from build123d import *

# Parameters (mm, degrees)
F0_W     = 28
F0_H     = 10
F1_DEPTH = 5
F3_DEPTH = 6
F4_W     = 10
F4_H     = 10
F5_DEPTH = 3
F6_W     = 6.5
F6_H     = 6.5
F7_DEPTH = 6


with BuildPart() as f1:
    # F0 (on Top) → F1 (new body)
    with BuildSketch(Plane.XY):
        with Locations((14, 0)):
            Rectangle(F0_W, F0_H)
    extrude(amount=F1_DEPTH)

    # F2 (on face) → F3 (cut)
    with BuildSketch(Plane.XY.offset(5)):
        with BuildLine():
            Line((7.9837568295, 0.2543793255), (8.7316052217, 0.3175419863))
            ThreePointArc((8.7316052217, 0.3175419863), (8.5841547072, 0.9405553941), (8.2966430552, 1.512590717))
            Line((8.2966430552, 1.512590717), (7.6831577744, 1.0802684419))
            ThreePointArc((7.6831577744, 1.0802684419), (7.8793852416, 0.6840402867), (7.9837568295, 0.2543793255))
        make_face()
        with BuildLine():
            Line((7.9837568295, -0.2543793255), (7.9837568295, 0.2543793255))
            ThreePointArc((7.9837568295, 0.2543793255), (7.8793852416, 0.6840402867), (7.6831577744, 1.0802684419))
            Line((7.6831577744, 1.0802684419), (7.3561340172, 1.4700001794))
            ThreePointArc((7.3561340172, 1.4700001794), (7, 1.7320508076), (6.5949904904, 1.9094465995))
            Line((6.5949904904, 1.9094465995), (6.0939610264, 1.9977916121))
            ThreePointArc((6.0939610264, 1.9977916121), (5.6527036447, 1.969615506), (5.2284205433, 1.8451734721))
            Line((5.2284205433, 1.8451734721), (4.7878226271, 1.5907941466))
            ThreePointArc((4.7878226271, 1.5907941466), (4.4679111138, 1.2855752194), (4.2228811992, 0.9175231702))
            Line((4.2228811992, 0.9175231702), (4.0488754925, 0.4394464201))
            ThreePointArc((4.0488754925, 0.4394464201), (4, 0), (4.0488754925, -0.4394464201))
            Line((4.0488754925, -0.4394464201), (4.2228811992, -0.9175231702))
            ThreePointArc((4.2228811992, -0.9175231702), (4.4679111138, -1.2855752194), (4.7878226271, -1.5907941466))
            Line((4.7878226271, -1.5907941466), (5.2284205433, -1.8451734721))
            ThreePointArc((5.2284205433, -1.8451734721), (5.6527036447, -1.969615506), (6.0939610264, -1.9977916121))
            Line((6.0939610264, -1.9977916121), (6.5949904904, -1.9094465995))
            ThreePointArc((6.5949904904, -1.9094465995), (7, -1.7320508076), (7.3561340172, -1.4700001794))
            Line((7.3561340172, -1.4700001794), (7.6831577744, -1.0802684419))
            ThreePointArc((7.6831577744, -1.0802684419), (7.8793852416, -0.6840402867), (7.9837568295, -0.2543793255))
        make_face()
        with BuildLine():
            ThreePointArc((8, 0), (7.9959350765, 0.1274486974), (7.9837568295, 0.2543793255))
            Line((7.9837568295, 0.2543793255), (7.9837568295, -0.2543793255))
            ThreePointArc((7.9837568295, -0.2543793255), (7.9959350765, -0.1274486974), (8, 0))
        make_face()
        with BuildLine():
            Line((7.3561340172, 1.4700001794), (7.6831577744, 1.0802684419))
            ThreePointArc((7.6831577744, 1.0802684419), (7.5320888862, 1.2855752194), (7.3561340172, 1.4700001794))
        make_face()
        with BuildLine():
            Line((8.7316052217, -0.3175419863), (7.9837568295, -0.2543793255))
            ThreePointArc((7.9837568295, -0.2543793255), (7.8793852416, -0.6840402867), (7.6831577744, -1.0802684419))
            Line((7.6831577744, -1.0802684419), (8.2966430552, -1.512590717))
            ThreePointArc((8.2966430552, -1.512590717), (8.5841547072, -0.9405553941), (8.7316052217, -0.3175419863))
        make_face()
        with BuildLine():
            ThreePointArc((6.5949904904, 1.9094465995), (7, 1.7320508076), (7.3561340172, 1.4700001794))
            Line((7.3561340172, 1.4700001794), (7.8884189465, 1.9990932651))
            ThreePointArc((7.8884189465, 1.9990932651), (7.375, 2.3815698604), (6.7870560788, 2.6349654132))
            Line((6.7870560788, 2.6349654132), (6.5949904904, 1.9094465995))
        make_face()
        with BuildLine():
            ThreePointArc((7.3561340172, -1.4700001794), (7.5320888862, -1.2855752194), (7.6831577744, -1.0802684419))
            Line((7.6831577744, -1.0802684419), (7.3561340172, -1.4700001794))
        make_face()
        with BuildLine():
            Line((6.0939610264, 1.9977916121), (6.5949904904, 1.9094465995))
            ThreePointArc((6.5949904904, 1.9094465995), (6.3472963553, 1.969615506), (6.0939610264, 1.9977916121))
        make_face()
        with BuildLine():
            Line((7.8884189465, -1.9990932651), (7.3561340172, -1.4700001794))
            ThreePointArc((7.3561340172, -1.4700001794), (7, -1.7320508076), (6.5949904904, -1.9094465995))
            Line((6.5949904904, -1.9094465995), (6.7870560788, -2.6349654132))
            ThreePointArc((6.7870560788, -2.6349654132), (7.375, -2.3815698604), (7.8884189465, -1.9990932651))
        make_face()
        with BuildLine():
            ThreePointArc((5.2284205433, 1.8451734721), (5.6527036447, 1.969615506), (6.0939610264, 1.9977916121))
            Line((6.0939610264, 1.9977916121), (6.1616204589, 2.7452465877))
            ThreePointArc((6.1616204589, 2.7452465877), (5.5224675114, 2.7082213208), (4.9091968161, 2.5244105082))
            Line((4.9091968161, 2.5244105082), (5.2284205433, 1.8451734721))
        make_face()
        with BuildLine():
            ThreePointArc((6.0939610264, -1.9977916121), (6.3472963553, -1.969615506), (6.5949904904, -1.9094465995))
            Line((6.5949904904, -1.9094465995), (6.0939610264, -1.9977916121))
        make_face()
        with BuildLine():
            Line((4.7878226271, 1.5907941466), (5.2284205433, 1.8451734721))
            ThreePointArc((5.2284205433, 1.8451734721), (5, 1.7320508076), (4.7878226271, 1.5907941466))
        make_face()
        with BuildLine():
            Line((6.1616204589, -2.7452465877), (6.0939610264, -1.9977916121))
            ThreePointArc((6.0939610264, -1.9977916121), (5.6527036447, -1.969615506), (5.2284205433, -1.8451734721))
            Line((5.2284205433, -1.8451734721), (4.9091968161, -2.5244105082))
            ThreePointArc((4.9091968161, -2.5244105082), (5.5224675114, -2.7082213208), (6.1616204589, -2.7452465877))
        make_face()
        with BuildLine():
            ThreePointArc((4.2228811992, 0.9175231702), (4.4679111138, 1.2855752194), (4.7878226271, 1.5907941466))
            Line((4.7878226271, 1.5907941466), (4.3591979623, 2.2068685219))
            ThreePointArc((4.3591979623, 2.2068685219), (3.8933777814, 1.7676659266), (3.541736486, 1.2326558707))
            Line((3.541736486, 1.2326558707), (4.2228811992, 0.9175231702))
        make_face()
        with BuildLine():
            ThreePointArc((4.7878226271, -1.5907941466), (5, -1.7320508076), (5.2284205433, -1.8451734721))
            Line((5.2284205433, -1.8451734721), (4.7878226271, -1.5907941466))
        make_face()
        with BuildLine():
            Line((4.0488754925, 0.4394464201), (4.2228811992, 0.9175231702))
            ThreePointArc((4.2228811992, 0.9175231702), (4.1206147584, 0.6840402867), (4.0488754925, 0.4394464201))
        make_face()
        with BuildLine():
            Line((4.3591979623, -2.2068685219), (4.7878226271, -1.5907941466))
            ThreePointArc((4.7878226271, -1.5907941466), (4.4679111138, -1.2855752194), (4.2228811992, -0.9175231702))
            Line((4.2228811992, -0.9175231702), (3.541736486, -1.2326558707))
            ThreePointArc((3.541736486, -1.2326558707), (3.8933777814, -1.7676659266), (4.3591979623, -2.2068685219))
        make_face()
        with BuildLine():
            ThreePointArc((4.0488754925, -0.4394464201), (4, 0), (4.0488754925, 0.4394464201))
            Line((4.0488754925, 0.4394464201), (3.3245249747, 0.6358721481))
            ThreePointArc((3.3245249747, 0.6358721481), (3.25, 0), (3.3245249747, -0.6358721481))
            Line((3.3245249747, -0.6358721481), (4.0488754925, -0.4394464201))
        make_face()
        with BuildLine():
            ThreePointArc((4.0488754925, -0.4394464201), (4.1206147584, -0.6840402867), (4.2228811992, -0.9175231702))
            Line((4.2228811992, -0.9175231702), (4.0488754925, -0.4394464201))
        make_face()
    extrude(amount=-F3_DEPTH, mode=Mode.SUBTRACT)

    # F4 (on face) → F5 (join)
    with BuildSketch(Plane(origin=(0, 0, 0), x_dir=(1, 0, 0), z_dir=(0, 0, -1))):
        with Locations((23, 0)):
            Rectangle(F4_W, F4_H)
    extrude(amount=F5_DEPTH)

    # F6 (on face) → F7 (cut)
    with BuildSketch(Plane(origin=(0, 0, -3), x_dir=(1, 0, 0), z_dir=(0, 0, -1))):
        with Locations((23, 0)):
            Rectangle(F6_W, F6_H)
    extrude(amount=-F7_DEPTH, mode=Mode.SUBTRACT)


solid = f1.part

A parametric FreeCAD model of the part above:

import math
import FreeCAD as App
import Part
import Sketcher
Q = App.Units.Quantity

doc = App.newDocument("Part")
body = doc.addObject("PartDesign::Body", "Body")

# Sketch on XY plane
sketch1 = doc.addObject("Sketcher::SketchObject", "Sketch")
body.addObject(sketch1)
sketch1.AttachmentSupport = (doc.XY_Plane, [""])
sketch1.MapMode = "FlatFace"
sketch1.addGeometry(Part.LineSegment(App.Vector(0, 5, 0), App.Vector(0, -5, 0)), False)
sketch1.addGeometry(Part.LineSegment(App.Vector(0, -5, 0), App.Vector(28, -5, 0)), False)
sketch1.addGeometry(Part.LineSegment(App.Vector(28, -5, 0), App.Vector(28, 5, 0)), False)
sketch1.addGeometry(Part.LineSegment(App.Vector(28, 5, 0), App.Vector(0, 5, 0)), False)
sketch1.addConstraint(Sketcher.Constraint("Coincident", 0, 2, 1, 1))
sketch1.addConstraint(Sketcher.Constraint("Coincident", 1, 2, 2, 1))
sketch1.addConstraint(Sketcher.Constraint("Coincident", 2, 2, 3, 1))
sketch1.addConstraint(Sketcher.Constraint("Coincident", 3, 2, 0, 1))
sketch1.addConstraint(Sketcher.Constraint("Vertical", 0))
sketch1.addConstraint(Sketcher.Constraint("Horizontal", 1))
sketch1.addConstraint(Sketcher.Constraint("Vertical", 2))
sketch1.addConstraint(Sketcher.Constraint("Horizontal", 3))
sketch1.addConstraint(Sketcher.Constraint("Symmetric", 0, 2, 3, 2, -1, 1))
sketch1.addConstraint(Sketcher.Constraint("DistanceX", 1, 1, 1, 2, Q("28 mm")))
sketch1.addConstraint(Sketcher.Constraint("DistanceY", 0, 2, 0, 1, Q("10 mm")))
pad1 = doc.addObject("PartDesign::Pad", "Pad")
body.addObject(pad1)
pad1.Profile = sketch1
pad1.Length = 5

# Sketch on XY plane
sketch2 = doc.addObject("Sketcher::SketchObject", "Sketch001")
body.addObject(sketch2)
sketch2.AttachmentSupport = (doc.XY_Plane, [""])
sketch2.MapMode = "FlatFace"
sketch2.AttachmentOffset = App.Placement(App.Vector(0, 0, 5), App.Rotation())
sketch2.addGeometry(Part.LineSegment(App.Vector(7.98, 0.25, 0), App.Vector(8.73, 0.32, 0)), False)
sketch2.addGeometry(Part.ArcOfCircle(Part.Circle(App.Vector(6, 0, 0), App.Vector(0, 0, 1), 2.75), math.radians(7), math.radians(33)), False)
sketch2.addGeometry(Part.LineSegment(App.Vector(8.3, 1.51, 0), App.Vector(7.68, 1.08, 0)), False)
sketch2.addGeometry(Part.ArcOfCircle(Part.Circle(App.Vector(6, 0, 0), App.Vector(0, 0, 1), 2), math.radians(32.69), math.radians(47.31)), False)
sketch2.addGeometry(Part.LineSegment(App.Vector(7.36, 1.47, 0), App.Vector(7.89, 2, 0)), False)
sketch2.addGeometry(Part.ArcOfCircle(Part.Circle(App.Vector(6, 0, 0), App.Vector(0, 0, 1), 2.75), math.radians(47), math.radians(73)), False)
sketch2.addGeometry(Part.LineSegment(App.Vector(6.79, 2.63, 0), App.Vector(6.59, 1.91, 0)), False)
sketch2.addGeometry(Part.ArcOfCircle(Part.Circle(App.Vector(6, 0, 0), App.Vector(0, 0, 1), 2), math.radians(72.69), math.radians(87.31)), False)
sketch2.addGeometry(Part.LineSegment(App.Vector(6.09, 2, 0), App.Vector(6.16, 2.75, 0)), False)
sketch2.addGeometry(Part.ArcOfCircle(Part.Circle(App.Vector(6, 0, 0), App.Vector(0, 0, 1), 2.75), math.radians(87), math.radians(113)), False)
sketch2.addGeometry(Part.LineSegment(App.Vector(4.91, 2.52, 0), App.Vector(5.23, 1.85, 0)), False)
sketch2.addGeometry(Part.ArcOfCircle(Part.Circle(App.Vector(6, 0, 0), App.Vector(0, 0, 1), 2), math.radians(112.69), math.radians(127.31)), False)
sketch2.addGeometry(Part.LineSegment(App.Vector(4.79, 1.59, 0), App.Vector(4.36, 2.21, 0)), False)
sketch2.addGeometry(Part.ArcOfCircle(Part.Circle(App.Vector(6, 0, 0), App.Vector(0, 0, 1), 2.75), math.radians(127), math.radians(153)), False)
sketch2.addGeometry(Part.LineSegment(App.Vector(3.54, 1.23, 0), App.Vector(4.22, 0.92, 0)), False)
sketch2.addGeometry(Part.ArcOfCircle(Part.Circle(App.Vector(6, 0, 0), App.Vector(0, 0, 1), 2), math.radians(152.69), math.radians(167.31)), False)
sketch2.addGeometry(Part.LineSegment(App.Vector(4.05, 0.44, 0), App.Vector(3.32, 0.64, 0)), False)
sketch2.addGeometry(Part.ArcOfCircle(Part.Circle(App.Vector(6, 0, 0), App.Vector(0, 0, 1), 2.75), math.radians(167), math.radians(193)), False)
sketch2.addGeometry(Part.LineSegment(App.Vector(3.32, -0.64, 0), App.Vector(4.05, -0.44, 0)), False)
sketch2.addGeometry(Part.ArcOfCircle(Part.Circle(App.Vector(6, 0, 0), App.Vector(0, 0, 1), 2), math.radians(-167.31), math.radians(-152.69)), False)
sketch2.addGeometry(Part.LineSegment(App.Vector(4.22, -0.92, 0), App.Vector(3.54, -1.23, 0)), False)
sketch2.addGeometry(Part.ArcOfCircle(Part.Circle(App.Vector(6, 0, 0), App.Vector(0, 0, 1), 2.75), math.radians(-153), math.radians(-127)), False)
sketch2.addGeometry(Part.LineSegment(App.Vector(4.36, -2.21, 0), App.Vector(4.79, -1.59, 0)), False)
sketch2.addGeometry(Part.ArcOfCircle(Part.Circle(App.Vector(6, 0, 0), App.Vector(0, 0, 1), 2), math.radians(-127.31), math.radians(-112.69)), False)
sketch2.addGeometry(Part.LineSegment(App.Vector(5.23, -1.85, 0), App.Vector(4.91, -2.52, 0)), False)
sketch2.addGeometry(Part.ArcOfCircle(Part.Circle(App.Vector(6, 0, 0), App.Vector(0, 0, 1), 2.75), math.radians(-113), math.radians(-87)), False)
sketch2.addGeometry(Part.LineSegment(App.Vector(6.16, -2.75, 0), App.Vector(6.09, -2, 0)), False)
sketch2.addGeometry(Part.ArcOfCircle(Part.Circle(App.Vector(6, 0, 0), App.Vector(0, 0, 1), 2), math.radians(-87.31), math.radians(-72.69)), False)
sketch2.addGeometry(Part.LineSegment(App.Vector(6.59, -1.91, 0), App.Vector(6.79, -2.63, 0)), False)
sketch2.addGeometry(Part.ArcOfCircle(Part.Circle(App.Vector(6, 0, 0), App.Vector(0, 0, 1), 2.75), math.radians(-73), math.radians(-47)), False)
sketch2.addGeometry(Part.LineSegment(App.Vector(7.89, -2, 0), App.Vector(7.36, -1.47, 0)), False)
sketch2.addGeometry(Part.ArcOfCircle(Part.Circle(App.Vector(6, 0, 0), App.Vector(0, 0, 1), 2), math.radians(-47.31), math.radians(-32.69)), False)
sketch2.addGeometry(Part.LineSegment(App.Vector(7.68, -1.08, 0), App.Vector(8.3, -1.51, 0)), False)
sketch2.addGeometry(Part.ArcOfCircle(Part.Circle(App.Vector(6, 0, 0), App.Vector(0, 0, 1), 2.75), math.radians(-33), math.radians(-7)), False)
sketch2.addGeometry(Part.LineSegment(App.Vector(8.73, -0.32, 0), App.Vector(7.98, -0.25, 0)), False)
sketch2.addGeometry(Part.ArcOfCircle(Part.Circle(App.Vector(6, 0, 0), App.Vector(0, 0, 1), 2), math.radians(-7.31), math.radians(0)), False)
sketch2.addGeometry(Part.ArcOfCircle(Part.Circle(App.Vector(6, 0, 0), App.Vector(0, 0, 1), 2), math.radians(0), math.radians(7.31)), False)
sketch2.addConstraint(Sketcher.Constraint("Coincident", 0, 2, 1, 1))
sketch2.addConstraint(Sketcher.Constraint("Coincident", 1, 2, 2, 1))
sketch2.addConstraint(Sketcher.Constraint("Coincident", 2, 2, 3, 1))
sketch2.addConstraint(Sketcher.Constraint("Coincident", 3, 2, 4, 1))
sketch2.addConstraint(Sketcher.Constraint("Coincident", 4, 2, 5, 1))
sketch2.addConstraint(Sketcher.Constraint("Coincident", 5, 2, 6, 1))
sketch2.addConstraint(Sketcher.Constraint("Coincident", 6, 2, 7, 1))
sketch2.addConstraint(Sketcher.Constraint("Coincident", 7, 2, 8, 1))
sketch2.addConstraint(Sketcher.Constraint("Coincident", 8, 2, 9, 1))
sketch2.addConstraint(Sketcher.Constraint("Coincident", 9, 2, 10, 1))
sketch2.addConstraint(Sketcher.Constraint("Coincident", 10, 2, 11, 1))
sketch2.addConstraint(Sketcher.Constraint("Coincident", 11, 2, 12, 1))
sketch2.addConstraint(Sketcher.Constraint("Coincident", 12, 2, 13, 1))
sketch2.addConstraint(Sketcher.Constraint("Coincident", 13, 2, 14, 1))
sketch2.addConstraint(Sketcher.Constraint("Coincident", 14, 2, 15, 1))
sketch2.addConstraint(Sketcher.Constraint("Coincident", 15, 2, 16, 1))
sketch2.addConstraint(Sketcher.Constraint("Coincident", 16, 2, 17, 1))
sketch2.addConstraint(Sketcher.Constraint("Coincident", 17, 2, 18, 1))
sketch2.addConstraint(Sketcher.Constraint("Coincident", 18, 2, 19, 1))
sketch2.addConstraint(Sketcher.Constraint("Coincident", 19, 2, 20, 1))
sketch2.addConstraint(Sketcher.Constraint("Coincident", 20, 2, 21, 1))
sketch2.addConstraint(Sketcher.Constraint("Coincident", 21, 2, 22, 1))
sketch2.addConstraint(Sketcher.Constraint("Coincident", 22, 2, 23, 1))
sketch2.addConstraint(Sketcher.Constraint("Coincident", 23, 2, 24, 1))
sketch2.addConstraint(Sketcher.Constraint("Coincident", 24, 2, 25, 1))
sketch2.addConstraint(Sketcher.Constraint("Coincident", 25, 2, 26, 1))
sketch2.addConstraint(Sketcher.Constraint("Coincident", 26, 2, 27, 1))
sketch2.addConstraint(Sketcher.Constraint("Coincident", 27, 2, 28, 1))
sketch2.addConstraint(Sketcher.Constraint("Coincident", 28, 2, 29, 1))
sketch2.addConstraint(Sketcher.Constraint("Coincident", 29, 2, 30, 1))
sketch2.addConstraint(Sketcher.Constraint("Coincident", 30, 2, 31, 1))
sketch2.addConstraint(Sketcher.Constraint("Coincident", 31, 2, 32, 1))
sketch2.addConstraint(Sketcher.Constraint("Coincident", 32, 2, 33, 1))
sketch2.addConstraint(Sketcher.Constraint("Coincident", 33, 2, 34, 1))
sketch2.addConstraint(Sketcher.Constraint("Coincident", 34, 2, 35, 1))
sketch2.addConstraint(Sketcher.Constraint("Tangent", 35, 2, 36, 1))
sketch2.addConstraint(Sketcher.Constraint("Coincident", 36, 2, 0, 1))
sketch2.addConstraint(Sketcher.Constraint("Coincident", 3, 3, 1, 3))
sketch2.addConstraint(Sketcher.Constraint("Coincident", 5, 3, 1, 3))
sketch2.addConstraint(Sketcher.Constraint("Coincident", 7, 3, 1, 3))
sketch2.addConstraint(Sketcher.Constraint("Coincident", 9, 3, 1, 3))
sketch2.addConstraint(Sketcher.Constraint("Coincident", 11, 3, 1, 3))
sketch2.addConstraint(Sketcher.Constraint("Coincident", 13, 3, 1, 3))
sketch2.addConstraint(Sketcher.Constraint("Coincident", 15, 3, 1, 3))
sketch2.addConstraint(Sketcher.Constraint("Coincident", 17, 3, 1, 3))
sketch2.addConstraint(Sketcher.Constraint("Coincident", 19, 3, 1, 3))
sketch2.addConstraint(Sketcher.Constraint("Coincident", 21, 3, 1, 3))
sketch2.addConstraint(Sketcher.Constraint("Coincident", 23, 3, 1, 3))
sketch2.addConstraint(Sketcher.Constraint("Coincident", 25, 3, 1, 3))
sketch2.addConstraint(Sketcher.Constraint("Coincident", 27, 3, 1, 3))
sketch2.addConstraint(Sketcher.Constraint("Coincident", 29, 3, 1, 3))
sketch2.addConstraint(Sketcher.Constraint("Coincident", 31, 3, 1, 3))
sketch2.addConstraint(Sketcher.Constraint("Coincident", 33, 3, 1, 3))
sketch2.addConstraint(Sketcher.Constraint("Coincident", 35, 3, 1, 3))
sketch2.addConstraint(Sketcher.Constraint("Equal", 1, 5))
sketch2.addConstraint(Sketcher.Constraint("Equal", 3, 7))
sketch2.addConstraint(Sketcher.Constraint("Equal", 5, 9))
sketch2.addConstraint(Sketcher.Constraint("Equal", 7, 11))
sketch2.addConstraint(Sketcher.Constraint("Equal", 9, 13))
sketch2.addConstraint(Sketcher.Constraint("Equal", 11, 15))
sketch2.addConstraint(Sketcher.Constraint("Equal", 13, 17))
sketch2.addConstraint(Sketcher.Constraint("Equal", 15, 19))
sketch2.addConstraint(Sketcher.Constraint("Equal", 17, 21))
sketch2.addConstraint(Sketcher.Constraint("Equal", 19, 23))
sketch2.addConstraint(Sketcher.Constraint("Equal", 21, 25))
sketch2.addConstraint(Sketcher.Constraint("Equal", 23, 27))
sketch2.addConstraint(Sketcher.Constraint("Equal", 25, 29))
sketch2.addConstraint(Sketcher.Constraint("Equal", 27, 31))
sketch2.addConstraint(Sketcher.Constraint("Equal", 29, 33))
sketch2.addConstraint(Sketcher.Constraint("Equal", 31, 35))
sketch2.addConstraint(Sketcher.Constraint("Equal", 35, 36))
sketch2.addConstraint(Sketcher.Constraint("Symmetric", 16, 2, 17, 2, -1))
sketch2.addConstraint(Sketcher.Constraint("PointOnObject", 35, 2, -1))
sketch2.addConstraint(Sketcher.Constraint("Vertical", 15, 2, 18, 2))
sketch2.addConstraint(Sketcher.Constraint("Vertical", 14, 2, 19, 2))
sketch2.addConstraint(Sketcher.Constraint("Vertical", 13, 2, 20, 2))
sketch2.addConstraint(Sketcher.Constraint("Vertical", 12, 2, 21, 2))
sketch2.addConstraint(Sketcher.Constraint("Vertical", 11, 2, 22, 2))
sketch2.addConstraint(Sketcher.Constraint("Vertical", 10, 2, 23, 2))
sketch2.addConstraint(Sketcher.Constraint("Vertical", 9, 2, 24, 2))
sketch2.addConstraint(Sketcher.Constraint("Vertical", 8, 2, 25, 2))
sketch2.addConstraint(Sketcher.Constraint("Vertical", 7, 2, 26, 2))
sketch2.addConstraint(Sketcher.Constraint("Vertical", 6, 2, 27, 2))
sketch2.addConstraint(Sketcher.Constraint("Vertical", 5, 2, 28, 2))
sketch2.addConstraint(Sketcher.Constraint("Vertical", 4, 2, 29, 2))
sketch2.addConstraint(Sketcher.Constraint("Vertical", 3, 2, 30, 2))
sketch2.addConstraint(Sketcher.Constraint("Vertical", 2, 2, 31, 2))
sketch2.addConstraint(Sketcher.Constraint("Vertical", 1, 2, 32, 2))
sketch2.addConstraint(Sketcher.Constraint("Vertical", 0, 2, 33, 2))
sketch2.addConstraint(Sketcher.Constraint("Vertical", 34, 2, 36, 2))
sketch2.addConstraint(Sketcher.Constraint("Equal", 0, 2))
sketch2.addConstraint(Sketcher.Constraint("Equal", 2, 4))
sketch2.addConstraint(Sketcher.Constraint("Equal", 4, 6))
sketch2.addConstraint(Sketcher.Constraint("Equal", 6, 8))
sketch2.addConstraint(Sketcher.Constraint("Equal", 8, 10))
sketch2.addConstraint(Sketcher.Constraint("Equal", 10, 12))
sketch2.addConstraint(Sketcher.Constraint("Equal", 12, 14))
sketch2.addConstraint(Sketcher.Constraint("Equal", 14, 16))
sketch2.addConstraint(Sketcher.Constraint("Radius", 3, Q("2 mm")))
sketch2.addConstraint(Sketcher.Constraint("Radius", 1, Q("2.75 mm")))
sketch2.addConstraint(Sketcher.Constraint("DistanceX", -1, 1, 1, 3, Q("6 mm")))
sketch2.addConstraint(Sketcher.Constraint("DistanceY", -1, 1, 3, 2, Q("1.47 mm")))
sketch2.addConstraint(Sketcher.Constraint("DistanceX", 12, 2, 9, 2, Q("0.549999 mm")))
sketch2.addConstraint(Sketcher.Constraint("DistanceX", 5, 2, 2, 2, Q("0.896102 mm")))
sketch2.addConstraint(Sketcher.Constraint("DistanceY", 7, 2, 4, 2, Q("0.001302 mm")))
sketch2.addConstraint(Sketcher.Constraint("DistanceY", 6, 2, 8, 2, Q("0.8358 mm")))
sketch2.addConstraint(Sketcher.Constraint("DistanceX", 8, 2, 4, 2, Q("1.726798 mm")))
sketch2.addConstraint(Sketcher.Constraint("DistanceX", 10, 2, 8, 2, Q("0.9332 mm")))
sketch2.addConstraint(Sketcher.Constraint("DistanceX", 31, 2, 34, 2, Q("0.300599 mm")))
sketch2.addConstraint(Sketcher.Constraint("DistanceX", -1, 1, 14, 2, Q("4.222881 mm")))
sketch2.addConstraint(Sketcher.Constraint("DistanceX", 13, 2, 15, 2, Q("0.507139 mm")))
pocket1 = doc.addObject("PartDesign::Pocket", "Pocket")
body.addObject(pocket1)
pocket1.Profile = sketch2
pocket1.Length = 6

# Sketch on XY plane
sketch3 = doc.addObject("Sketcher::SketchObject", "Sketch002")
body.addObject(sketch3)
sketch3.AttachmentSupport = (doc.XY_Plane, [""])
sketch3.MapMode = "FlatFace"
sketch3.addGeometry(Part.LineSegment(App.Vector(18, -5, 0), App.Vector(18, 5, 0)), False)
sketch3.addGeometry(Part.LineSegment(App.Vector(18, 5, 0), App.Vector(28, 5, 0)), False)
sketch3.addGeometry(Part.LineSegment(App.Vector(28, 5, 0), App.Vector(28, -5, 0)), False)
sketch3.addGeometry(Part.LineSegment(App.Vector(28, -5, 0), App.Vector(18, -5, 0)), False)
sketch3.addConstraint(Sketcher.Constraint("Coincident", 0, 2, 1, 1))
sketch3.addConstraint(Sketcher.Constraint("Coincident", 1, 2, 2, 1))
sketch3.addConstraint(Sketcher.Constraint("Coincident", 2, 2, 3, 1))
sketch3.addConstraint(Sketcher.Constraint("Coincident", 3, 2, 0, 1))
sketch3.addConstraint(Sketcher.Constraint("Vertical", 0))
sketch3.addConstraint(Sketcher.Constraint("Horizontal", 1))
sketch3.addConstraint(Sketcher.Constraint("Vertical", 2))
sketch3.addConstraint(Sketcher.Constraint("Horizontal", 3))
sketch3.addConstraint(Sketcher.Constraint("Equal", 3, 0))
sketch3.addConstraint(Sketcher.Constraint("DistanceX", 1, 1, 1, 2, Q("10 mm")))
sketch3.addConstraint(Sketcher.Constraint("DistanceX", -1, 1, 0, 2, Q("18 mm")))
sketch3.addConstraint(Sketcher.Constraint("DistanceY", -1, 1, 0, 2, Q("5 mm")))
pad2 = doc.addObject("PartDesign::Pad", "Pad001")
body.addObject(pad2)
pad2.Profile = sketch3
pad2.Length = 3
pad2.Reversed = True

# Sketch on XY plane
sketch4 = doc.addObject("Sketcher::SketchObject", "Sketch003")
body.addObject(sketch4)
sketch4.AttachmentSupport = (doc.XY_Plane, [""])
sketch4.MapMode = "FlatFace"
sketch4.AttachmentOffset = App.Placement(App.Vector(0, 0, -3), App.Rotation())
sketch4.addGeometry(Part.LineSegment(App.Vector(20, -3, 0), App.Vector(20, 3, 0)), False)
sketch4.addGeometry(Part.LineSegment(App.Vector(20, 3, 0), App.Vector(26, 3, 0)), False)
sketch4.addGeometry(Part.LineSegment(App.Vector(26, 3, 0), App.Vector(26, -3, 0)), False)
sketch4.addGeometry(Part.LineSegment(App.Vector(26, -3, 0), App.Vector(20, -3, 0)), False)
sketch4.addConstraint(Sketcher.Constraint("Coincident", 0, 2, 1, 1))
sketch4.addConstraint(Sketcher.Constraint("Coincident", 1, 2, 2, 1))
sketch4.addConstraint(Sketcher.Constraint("Coincident", 2, 2, 3, 1))
sketch4.addConstraint(Sketcher.Constraint("Coincident", 3, 2, 0, 1))
sketch4.addConstraint(Sketcher.Constraint("Vertical", 0))
sketch4.addConstraint(Sketcher.Constraint("Horizontal", 1))
sketch4.addConstraint(Sketcher.Constraint("Vertical", 2))
sketch4.addConstraint(Sketcher.Constraint("Horizontal", 3))
sketch4.addConstraint(Sketcher.Constraint("Equal", 3, 0))
sketch4.addConstraint(Sketcher.Constraint("DistanceX", 1, 1, 1, 2, Q("6.5 mm")))
sketch4.addConstraint(Sketcher.Constraint("DistanceX", -1, 1, 0, 2, Q("19.75 mm")))
sketch4.addConstraint(Sketcher.Constraint("DistanceY", -1, 1, 0, 2, Q("3.25 mm")))
pocket2 = doc.addObject("PartDesign::Pocket", "Pocket001")
body.addObject(pocket2)
pocket2.Profile = sketch4
pocket2.Length = 6
pocket2.Reversed = True

doc.recompute()
